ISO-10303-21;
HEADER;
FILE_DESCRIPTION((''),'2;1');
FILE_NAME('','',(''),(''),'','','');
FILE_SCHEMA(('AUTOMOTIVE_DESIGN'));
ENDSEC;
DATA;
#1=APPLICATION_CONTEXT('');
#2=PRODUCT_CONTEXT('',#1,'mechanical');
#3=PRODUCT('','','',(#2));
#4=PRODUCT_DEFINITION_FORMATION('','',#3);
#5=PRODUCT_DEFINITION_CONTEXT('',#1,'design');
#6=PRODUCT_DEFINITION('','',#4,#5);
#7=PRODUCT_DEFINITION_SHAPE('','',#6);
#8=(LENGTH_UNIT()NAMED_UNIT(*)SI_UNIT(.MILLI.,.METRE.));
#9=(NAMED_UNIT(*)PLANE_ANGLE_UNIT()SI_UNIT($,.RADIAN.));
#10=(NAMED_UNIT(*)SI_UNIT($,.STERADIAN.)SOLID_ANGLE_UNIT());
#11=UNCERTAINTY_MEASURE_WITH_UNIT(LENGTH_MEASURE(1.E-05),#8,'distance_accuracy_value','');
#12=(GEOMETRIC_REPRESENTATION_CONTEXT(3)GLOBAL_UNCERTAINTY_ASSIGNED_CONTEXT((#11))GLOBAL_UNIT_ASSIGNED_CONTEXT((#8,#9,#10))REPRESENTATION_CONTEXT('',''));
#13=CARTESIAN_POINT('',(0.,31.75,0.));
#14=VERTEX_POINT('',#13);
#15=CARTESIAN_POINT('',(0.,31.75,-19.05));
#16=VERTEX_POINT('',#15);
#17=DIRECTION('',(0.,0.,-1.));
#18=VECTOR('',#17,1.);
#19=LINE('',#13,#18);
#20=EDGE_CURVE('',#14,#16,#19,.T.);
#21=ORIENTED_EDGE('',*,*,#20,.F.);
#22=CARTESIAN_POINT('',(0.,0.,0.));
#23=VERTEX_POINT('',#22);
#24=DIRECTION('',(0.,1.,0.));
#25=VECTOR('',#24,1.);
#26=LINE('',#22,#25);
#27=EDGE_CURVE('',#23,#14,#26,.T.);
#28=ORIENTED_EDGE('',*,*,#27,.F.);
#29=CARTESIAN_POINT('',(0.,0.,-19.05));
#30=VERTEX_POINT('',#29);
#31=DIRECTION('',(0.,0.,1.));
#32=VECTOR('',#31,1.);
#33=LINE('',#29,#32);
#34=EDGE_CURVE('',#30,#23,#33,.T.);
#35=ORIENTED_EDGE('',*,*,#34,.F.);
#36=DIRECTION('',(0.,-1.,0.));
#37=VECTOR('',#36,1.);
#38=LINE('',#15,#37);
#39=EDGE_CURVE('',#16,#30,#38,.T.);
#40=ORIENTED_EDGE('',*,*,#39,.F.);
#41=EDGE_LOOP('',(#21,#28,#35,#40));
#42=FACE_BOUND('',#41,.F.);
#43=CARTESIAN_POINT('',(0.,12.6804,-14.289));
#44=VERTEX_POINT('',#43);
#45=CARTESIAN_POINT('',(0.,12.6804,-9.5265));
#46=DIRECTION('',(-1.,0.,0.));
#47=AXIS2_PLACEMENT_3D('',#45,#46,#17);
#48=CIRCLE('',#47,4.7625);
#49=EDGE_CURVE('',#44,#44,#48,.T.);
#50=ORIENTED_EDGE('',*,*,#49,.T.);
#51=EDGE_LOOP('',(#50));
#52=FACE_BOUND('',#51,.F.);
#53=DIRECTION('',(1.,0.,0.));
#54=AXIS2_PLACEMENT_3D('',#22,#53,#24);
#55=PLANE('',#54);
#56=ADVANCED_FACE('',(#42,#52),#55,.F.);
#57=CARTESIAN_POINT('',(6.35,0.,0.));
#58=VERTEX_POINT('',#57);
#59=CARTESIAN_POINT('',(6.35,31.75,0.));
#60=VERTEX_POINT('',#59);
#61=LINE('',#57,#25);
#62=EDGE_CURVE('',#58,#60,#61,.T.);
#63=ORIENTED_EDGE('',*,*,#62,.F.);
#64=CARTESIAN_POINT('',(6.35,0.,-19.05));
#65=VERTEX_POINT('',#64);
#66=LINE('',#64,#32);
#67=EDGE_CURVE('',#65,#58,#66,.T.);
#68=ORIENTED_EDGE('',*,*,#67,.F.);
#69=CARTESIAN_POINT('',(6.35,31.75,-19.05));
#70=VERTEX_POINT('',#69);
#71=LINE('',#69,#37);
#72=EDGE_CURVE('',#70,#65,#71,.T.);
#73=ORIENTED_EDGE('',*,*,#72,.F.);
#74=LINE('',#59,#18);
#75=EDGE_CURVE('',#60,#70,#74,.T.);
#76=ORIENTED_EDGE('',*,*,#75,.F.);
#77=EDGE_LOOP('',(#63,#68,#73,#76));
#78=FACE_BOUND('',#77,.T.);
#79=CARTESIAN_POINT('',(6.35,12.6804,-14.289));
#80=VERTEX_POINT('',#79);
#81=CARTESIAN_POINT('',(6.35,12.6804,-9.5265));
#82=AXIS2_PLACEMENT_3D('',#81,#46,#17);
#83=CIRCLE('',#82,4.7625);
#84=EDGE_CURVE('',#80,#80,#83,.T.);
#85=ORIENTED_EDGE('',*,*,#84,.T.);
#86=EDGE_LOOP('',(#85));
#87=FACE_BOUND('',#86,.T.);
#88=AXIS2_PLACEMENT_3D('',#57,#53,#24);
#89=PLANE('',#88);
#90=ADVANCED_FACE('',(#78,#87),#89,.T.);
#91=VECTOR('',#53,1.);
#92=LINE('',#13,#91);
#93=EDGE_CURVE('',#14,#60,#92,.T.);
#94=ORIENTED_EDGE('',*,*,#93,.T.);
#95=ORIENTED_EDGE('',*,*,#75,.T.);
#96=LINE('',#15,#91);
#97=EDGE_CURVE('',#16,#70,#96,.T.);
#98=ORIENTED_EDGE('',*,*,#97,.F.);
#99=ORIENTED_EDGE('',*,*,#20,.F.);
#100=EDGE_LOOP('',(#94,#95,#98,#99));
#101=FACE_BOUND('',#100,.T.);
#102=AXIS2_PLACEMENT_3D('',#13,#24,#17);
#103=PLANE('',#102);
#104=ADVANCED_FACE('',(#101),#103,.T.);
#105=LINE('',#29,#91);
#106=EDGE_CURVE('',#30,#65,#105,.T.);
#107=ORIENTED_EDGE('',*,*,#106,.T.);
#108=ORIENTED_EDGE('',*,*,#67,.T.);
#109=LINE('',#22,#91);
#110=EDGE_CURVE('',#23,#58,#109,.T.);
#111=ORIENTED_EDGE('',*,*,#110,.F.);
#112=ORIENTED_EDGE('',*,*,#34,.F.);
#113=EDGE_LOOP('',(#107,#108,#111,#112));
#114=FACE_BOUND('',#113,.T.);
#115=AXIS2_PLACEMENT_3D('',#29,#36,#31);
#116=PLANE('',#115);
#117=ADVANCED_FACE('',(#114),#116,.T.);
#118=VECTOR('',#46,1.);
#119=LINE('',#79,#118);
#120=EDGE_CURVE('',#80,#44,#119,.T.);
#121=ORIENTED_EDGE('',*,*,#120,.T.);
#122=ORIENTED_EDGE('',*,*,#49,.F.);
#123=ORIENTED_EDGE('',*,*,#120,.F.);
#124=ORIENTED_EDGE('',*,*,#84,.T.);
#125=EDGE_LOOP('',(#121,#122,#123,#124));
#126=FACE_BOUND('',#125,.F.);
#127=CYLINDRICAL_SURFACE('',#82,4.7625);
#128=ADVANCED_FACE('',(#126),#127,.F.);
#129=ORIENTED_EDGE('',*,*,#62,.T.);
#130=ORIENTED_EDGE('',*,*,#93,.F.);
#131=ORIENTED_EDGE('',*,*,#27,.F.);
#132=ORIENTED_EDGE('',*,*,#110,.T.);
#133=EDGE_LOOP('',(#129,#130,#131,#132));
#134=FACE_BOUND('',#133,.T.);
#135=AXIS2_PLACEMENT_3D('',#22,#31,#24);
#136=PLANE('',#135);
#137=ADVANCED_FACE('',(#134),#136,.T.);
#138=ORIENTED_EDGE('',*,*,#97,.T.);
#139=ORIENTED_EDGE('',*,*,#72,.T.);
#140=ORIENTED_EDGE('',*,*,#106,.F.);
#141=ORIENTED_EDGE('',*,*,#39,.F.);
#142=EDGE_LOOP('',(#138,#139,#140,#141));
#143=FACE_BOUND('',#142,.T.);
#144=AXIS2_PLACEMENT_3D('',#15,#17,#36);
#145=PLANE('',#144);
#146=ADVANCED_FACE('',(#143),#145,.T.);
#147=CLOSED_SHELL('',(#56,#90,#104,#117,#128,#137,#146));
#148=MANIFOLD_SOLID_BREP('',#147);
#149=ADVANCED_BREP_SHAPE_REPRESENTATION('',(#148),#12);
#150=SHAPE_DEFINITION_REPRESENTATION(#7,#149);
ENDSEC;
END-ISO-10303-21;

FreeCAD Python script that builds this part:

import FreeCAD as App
import Part
import Sketcher
from FreeCAD import Vector
Q = App.Units.Quantity

doc = App.newDocument("Part")
body = doc.addObject("PartDesign::Body", "Body")

# Sketch on YZ plane
sketch1 = body.newObject("Sketcher::SketchObject", "Sketch")
sketch1.AttachmentSupport = (doc.getObject("YZ_Plane"), [""])
sketch1.MapMode = "FlatFace"
sketch1.addGeometry(Part.LineSegment(Vector(31.75, 0, 0), Vector(0, 0, 0)), False)
sketch1.addGeometry(Part.LineSegment(Vector(0, 0, 0), Vector(0, -19.05, 0)), False)
sketch1.addGeometry(Part.LineSegment(Vector(0, -19.05, 0), Vector(31.75, -19.05, 0)), False)
sketch1.addGeometry(Part.LineSegment(Vector(31.75, -19.05, 0), Vector(31.75, 0, 0)), False)
sketch1.addConstraint(Sketcher.Constraint("Coincident", 0, 2, 1, 1))
sketch1.addConstraint(Sketcher.Constraint("Coincident", 1, 2, 2, 1))
sketch1.addConstraint(Sketcher.Constraint("Coincident", 2, 2, 3, 1))
sketch1.addConstraint(Sketcher.Constraint("Coincident", 3, 2, 0, 1))
sketch1.addConstraint(Sketcher.Constraint("Horizontal", 0))
sketch1.addConstraint(Sketcher.Constraint("Vertical", 1))
sketch1.addConstraint(Sketcher.Constraint("Horizontal", 2))
sketch1.addConstraint(Sketcher.Constraint("Vertical", 3))
sketch1.addConstraint(Sketcher.Constraint("Coincident", 0, 2, -1, 1))
sketch1.addConstraint(Sketcher.Constraint("DistanceX", 0, 2, 0, 1, Q("1.25 in")))
sketch1.addConstraint(Sketcher.Constraint("DistanceY", 1, 2, 1, 1, Q("0.75 in")))
pad1 = body.newObject("PartDesign::Pad", "Pad")
pad1.Profile = sketch1
pad1.Length = Q("0.25 in")

# Sketch on YZ plane
sketch2 = body.newObject("Sketcher::SketchObject", "Sketch001")
sketch2.AttachmentSupport = (doc.getObject("YZ_Plane"), [""])
sketch2.MapMode = "FlatFace"
sketch2.AttachmentOffset = App.Placement(Vector(0, 0, 0.25 * 25.4), App.Rotation())
sketch2.addGeometry(Part.Circle(Vector(12.6804, -9.5265, 0), Vector(0, 0, 1), 4.7625), False)
sketch2.addConstraint(Sketcher.Constraint("Diameter", 0, Q("0.375 in")))
sketch2.addConstraint(Sketcher.Constraint("DistanceX", -1, 1, 0, 3, Q("12.6804 mm")))
sketch2.addConstraint(Sketcher.Constraint("DistanceY", 0, 3, -1, 1, Q("9.5265 mm")))
doc.recompute()
hole = body.newObject("PartDesign::Hole", "Hole")
hole.Profile = sketch2
hole.ThreadType = "None"
hole.Diameter = Q("0.375 in")
hole.DepthType = "Dimension"
hole.Depth = Q("2 in")
hole.DrillPoint = "Angled"
hole.DrillPointAngle = 118

doc.recompute()
